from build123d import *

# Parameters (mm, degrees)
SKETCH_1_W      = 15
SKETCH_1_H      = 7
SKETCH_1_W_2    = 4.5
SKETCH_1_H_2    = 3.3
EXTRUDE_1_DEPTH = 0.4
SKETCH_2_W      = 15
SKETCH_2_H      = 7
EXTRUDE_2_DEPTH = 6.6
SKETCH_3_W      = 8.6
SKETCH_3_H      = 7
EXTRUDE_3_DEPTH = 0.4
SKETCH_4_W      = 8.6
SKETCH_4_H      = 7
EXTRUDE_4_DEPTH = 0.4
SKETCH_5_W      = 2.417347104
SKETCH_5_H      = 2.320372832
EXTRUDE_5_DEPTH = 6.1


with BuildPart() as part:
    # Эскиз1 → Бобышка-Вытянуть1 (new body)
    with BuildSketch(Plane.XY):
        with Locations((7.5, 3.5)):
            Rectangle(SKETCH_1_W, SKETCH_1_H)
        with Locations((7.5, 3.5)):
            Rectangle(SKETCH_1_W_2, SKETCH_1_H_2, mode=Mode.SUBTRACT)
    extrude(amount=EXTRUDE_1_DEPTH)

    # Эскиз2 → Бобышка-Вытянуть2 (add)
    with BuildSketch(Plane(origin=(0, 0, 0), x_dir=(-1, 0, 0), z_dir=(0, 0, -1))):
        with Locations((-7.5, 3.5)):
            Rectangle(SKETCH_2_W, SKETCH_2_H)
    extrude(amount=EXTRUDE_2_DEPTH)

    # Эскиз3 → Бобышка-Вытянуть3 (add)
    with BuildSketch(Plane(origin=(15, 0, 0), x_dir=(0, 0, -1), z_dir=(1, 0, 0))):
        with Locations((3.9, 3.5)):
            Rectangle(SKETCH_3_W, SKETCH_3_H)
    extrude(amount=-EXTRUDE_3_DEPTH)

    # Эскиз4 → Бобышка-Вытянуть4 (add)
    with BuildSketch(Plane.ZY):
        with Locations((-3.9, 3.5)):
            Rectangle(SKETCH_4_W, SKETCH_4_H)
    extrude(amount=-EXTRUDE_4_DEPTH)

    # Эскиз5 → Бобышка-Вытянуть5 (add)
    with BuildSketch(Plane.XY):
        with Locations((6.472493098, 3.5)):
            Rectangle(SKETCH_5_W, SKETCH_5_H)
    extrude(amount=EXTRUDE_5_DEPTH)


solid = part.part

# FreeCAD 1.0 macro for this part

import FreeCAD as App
import Part
import Sketcher
Q = App.Units.Quantity


def add_polygon(sketch, points):
    """Adds a closed chain of lines whose ends are joined by coincident constraints."""
    first, n = sketch.GeometryCount, len(points)
    for a, b in zip(points, points[1:] + points[:1]):
        sketch.addGeometry(Part.LineSegment(App.Vector(*a, 0), App.Vector(*b, 0)), False)
    for i in range(n):
        sketch.addConstraint(Sketcher.Constraint("Coincident", first + i, 2, first + (i + 1) % n, 1))

doc = App.newDocument("Part")
body = doc.addObject("PartDesign::Body", "Body")

# Sketch on XY plane
sketch1 = body.newObject("Sketcher::SketchObject", "Sketch")
sketch1.AttachmentSupport = (doc.getObject("XY_Plane"), [""])
sketch1.MapMode = "FlatFace"
add_polygon(sketch1, [(0, 7), (0, 0), (15, 0), (15, 7)])  # lines 0-3
add_polygon(sketch1, [(9.8, 1.9), (5.2, 1.9), (5.2, 5.2), (9.8, 5.2)])  # lines 4-7
sketch1.addConstraint([
    Sketcher.Constraint("Vertical", 0),
    Sketcher.Constraint("Horizontal", 1),
    Sketcher.Constraint("Vertical", 2),
    Sketcher.Constraint("Horizontal", 3),
    Sketcher.Constraint("Horizontal", 4),
    Sketcher.Constraint("Vertical", 5),
    Sketcher.Constraint("Horizontal", 6),
    Sketcher.Constraint("Vertical", 7),
    Sketcher.Constraint("Coincident", 0, 2, -1, 1),
    Sketcher.Constraint("DistanceX", 1, 1, 1, 2, Q("15 mm")),
    Sketcher.Constraint("DistanceY", 0, 2, 0, 1, Q("7 mm")),
    Sketcher.Constraint("DistanceX", 4, 2, 4, 1, Q("4.5 mm")),
    Sketcher.Constraint("DistanceY", 5, 1, 5, 2, Q("3.3 mm")),
    Sketcher.Constraint("DistanceX", -1, 1, 4, 2, Q("5.25 mm")),
    Sketcher.Constraint("DistanceY", -1, 1, 4, 2, Q("1.85 mm")),
])
pad1 = body.newObject("PartDesign::Pad", "Pad")
pad1.Profile = sketch1
pad1.Length = 0.4

# Sketch on XY plane
sketch2 = body.newObject("Sketcher::SketchObject", "Sketch001")
sketch2.AttachmentSupport = (doc.getObject("XY_Plane"), [""])
sketch2.MapMode = "FlatFace"
add_polygon(sketch2, [(15, 7), (15, 0), (0, 0), (0, 7)])  # lines 0-3
sketch2.addConstraint([
    Sketcher.Constraint("Vertical", 0),
    Sketcher.Constraint("Horizontal", 1),
    Sketcher.Constraint("Vertical", 2),
    Sketcher.Constraint("Horizontal", 3),
    Sketcher.Constraint("Coincident", 1, 2, -1, 1),
    Sketcher.Constraint("DistanceX", 1, 2, 1, 1, Q("15 mm")),
    Sketcher.Constraint("DistanceY", 0, 2, 0, 1, Q("7 mm")),
])
pad2 = body.newObject("PartDesign::Pad", "Pad001")
pad2.Profile = sketch2
pad2.Length = 6.6
pad2.Reversed = True

# Sketch on YZ plane
sketch3 = body.newObject("Sketcher::SketchObject", "Sketch002")
sketch3.AttachmentSupport = (doc.getObject("YZ_Plane"), [""])
sketch3.MapMode = "FlatFace"
sketch3.AttachmentOffset = App.Placement(App.Vector(0, 0, 15), App.Rotation())
add_polygon(sketch3, [(7, 0), (0, 0), (0, -8), (7, -8)])  # lines 0-3
sketch3.addConstraint([
    Sketcher.Constraint("Horizontal", 0),
    Sketcher.Constraint("Vertical", 1),
    Sketcher.Constraint("Horizontal", 2),
    Sketcher.Constraint("Vertical", 3),
    Sketcher.Constraint("PointOnObject", 0, 2, -2),
    Sketcher.Constraint("DistanceX", 0, 2, 0, 1, Q("7 mm")),
    Sketcher.Constraint("DistanceY", 1, 2, 1, 1, Q("8.6 mm")),
    Sketcher.Constraint("DistanceY", -1, 1, 0, 2, Q("0.4 mm")),
])
pad3 = body.newObject("PartDesign::Pad", "Pad002")
pad3.Profile = sketch3
pad3.Length = 0.4
pad3.Reversed = True

# Sketch on YZ plane
sketch4 = body.newObject("Sketcher::SketchObject", "Sketch003")
sketch4.AttachmentSupport = (doc.getObject("YZ_Plane"), [""])
sketch4.MapMode = "FlatFace"
add_polygon(sketch4, [(7, -8), (0, -8), (0, 0), (7, 0)])  # lines 0-3
sketch4.addConstraint([
    Sketcher.Constraint("Horizontal", 0),
    Sketcher.Constraint("Vertical", 1),
    Sketcher.Constraint("Horizontal", 2),
    Sketcher.Constraint("Vertical", 3),
    Sketcher.Constraint("PointOnObject", 0, 2, -2),
    Sketcher.Constraint("DistanceX", 0, 2, 0, 1, Q("7 mm")),
    Sketcher.Constraint("DistanceY", 1, 1, 1, 2, Q("8.6 mm")),
    Sketcher.Constraint("DistanceY", 0, 2, -1, 1, Q("8.2 mm")),
])
pad4 = body.newObject("PartDesign::Pad", "Pad003")
pad4.Profile = sketch4
pad4.Length = 0.4

# Sketch on XY plane
sketch5 = body.newObject("Sketcher::SketchObject", "Sketch004")
sketch5.AttachmentSupport = (doc.getObject("XY_Plane"), [""])
sketch5.MapMode = "FlatFace"
add_polygon(sketch5, [(5.3, 4.7), (5.3, 2.3), (7.7, 2.3), (7.7, 4.7)])  # lines 0-3
sketch5.addConstraint([
    Sketcher.Constraint("Vertical", 0),
    Sketcher.Constraint("Horizontal", 1),
    Sketcher.Constraint("Vertical", 2),
    Sketcher.Constraint("Horizontal", 3),
    Sketcher.Constraint("DistanceX", 1, 1, 1, 2, Q("2.417347 mm")),
    Sketcher.Constraint("DistanceY", 0, 2, 0, 1, Q("2.320373 mm")),
    Sketcher.Constraint("DistanceX", -1, 1, 0, 2, Q("5.26382 mm")),
    Sketcher.Constraint("DistanceY", -1, 1, 0, 2, Q("2.339814 mm")),
])
pad5 = body.newObject("PartDesign::Pad", "Pad004")
pad5.Profile = sketch5
pad5.Length = 6.1

doc.recompute()
